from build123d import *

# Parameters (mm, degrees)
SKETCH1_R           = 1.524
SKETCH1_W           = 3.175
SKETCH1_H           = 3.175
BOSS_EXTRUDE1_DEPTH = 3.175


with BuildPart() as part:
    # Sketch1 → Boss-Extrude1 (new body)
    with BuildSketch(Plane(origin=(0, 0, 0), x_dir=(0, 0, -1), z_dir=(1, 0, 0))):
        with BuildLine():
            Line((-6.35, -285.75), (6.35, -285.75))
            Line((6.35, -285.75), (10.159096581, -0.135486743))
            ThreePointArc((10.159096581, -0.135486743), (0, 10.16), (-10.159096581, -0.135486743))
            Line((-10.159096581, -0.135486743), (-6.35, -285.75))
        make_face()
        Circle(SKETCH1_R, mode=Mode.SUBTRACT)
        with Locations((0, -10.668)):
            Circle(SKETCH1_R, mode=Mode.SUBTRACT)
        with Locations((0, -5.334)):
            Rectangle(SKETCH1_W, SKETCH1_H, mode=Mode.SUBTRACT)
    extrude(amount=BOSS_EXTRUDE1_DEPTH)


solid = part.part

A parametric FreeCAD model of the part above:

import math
import FreeCAD as App
import Part
import Sketcher
from FreeCAD import Vector
Q = App.Units.Quantity


def add_polygon(sketch, points):
    """Adds a closed chain of lines whose ends are joined by coincident constraints."""
    first, n = sketch.GeometryCount, len(points)
    for a, b in zip(points, points[1:] + points[:1]):
        sketch.addGeometry(Part.LineSegment(App.Vector(*a, 0), App.Vector(*b, 0)), False)
    for i in range(n):
        sketch.addConstraint(Sketcher.Constraint("Coincident", first + i, 2, first + (i + 1) % n, 1))

doc = App.newDocument("Part")
params = doc.addObject("Spreadsheet::Sheet", "Params")
for row, (alias, value) in enumerate([
    ("sketch1_radius", "0.4 in"),
    ("sketch1_diameter", "0.12 in"),
    ("sketch1_height", "0.5 in"),
    ("sketch1_width", "0.125 in"),
    ("pad1_length", "0.125 in"),
], start=1):
    params.set(f"A{row}", alias)
    params.set(f"B{row}", "=" + value)
    params.setAlias(f"B{row}", alias)

body = doc.addObject("PartDesign::Body", "Body")

# Sketch on YZ plane
sketch1 = body.newObject("Sketcher::SketchObject", "Sketch")
sketch1.AttachmentSupport = (doc.getObject("YZ_Plane"), [""])
sketch1.MapMode = "FlatFace"
sketch1.addGeometry(Part.LineSegment(Vector(-285.8, 6.3, 0), Vector(-285.8, -6.3, 0)), False)  # 0
sketch1.addGeometry(Part.LineSegment(Vector(-285.8, -6.3, 0), Vector(-0.1, -10.2, 0)), False)  # 1
sketch1.addGeometry(Part.ArcOfCircle(Part.Circle(Vector(0, 0, 0), Vector(0, 0, 1), 10.2), math.radians(-91), math.radians(91)), False)  # 2
sketch1.addGeometry(Part.LineSegment(Vector(-0.1, 10.2, 0), Vector(-285.8, 6.3, 0)), False)  # 3
sketch1.addGeometry(Part.Circle(Vector(-10.7, 0, 0), Vector(0, 0, 1), 1.5), False)  # 4
add_polygon(sketch1, [(-6.9, -1.6), (-6.9, 1.6), (-3.7, 1.6), (-3.7, -1.6)])  # lines 5-8
sketch1.addGeometry(Part.Circle(Vector(0, 0, 0), Vector(0, 0, 1), 1.5), False)  # 9
sketch1.addConstraint([
    Sketcher.Constraint("Coincident", 0, 2, 1, 1),
    Sketcher.Constraint("Tangent", 1, 2, 2, 1),
    Sketcher.Constraint("Tangent", 2, 2, 3, 1),
    Sketcher.Constraint("Coincident", 3, 2, 0, 1),
    Sketcher.Constraint("Vertical", 0),
    Sketcher.Constraint("Vertical", 5),
    Sketcher.Constraint("Horizontal", 6),
    Sketcher.Constraint("Vertical", 7),
    Sketcher.Constraint("Horizontal", 8),
    Sketcher.Constraint("Coincident", 2, 3, -1, 1),
    Sketcher.Constraint("Coincident", 9, 3, -1, 1),
    Sketcher.Constraint("Equal", 4, 9),
    Sketcher.Constraint("PointOnObject", 4, 3, -1),
    Sketcher.Constraint("Vertical", 1, 2, 2, 2),
    Sketcher.Constraint("Equal", 8, 5),
    Sketcher.Constraint("Radius", 2, Q("0.4 in")),
    Sketcher.Constraint("Diameter", 4, Q("0.12 in")),
    Sketcher.Constraint("DistanceY", 0, 2, 0, 1, Q("0.5 in")),
    Sketcher.Constraint("DistanceX", 6, 1, 6, 2, Q("0.125 in")),
    Sketcher.Constraint("DistanceX", 4, 3, -1, 1, Q("0.42 in")),
    Sketcher.Constraint("DistanceX", 0, 2, -1, 1, Q("11.25 in")),
    Sketcher.Constraint("DistanceY", -1, 1, 5, 2, Q("0.0625 in")),
    Sketcher.Constraint("DistanceX", 5, 2, -1, 1, Q("0.2725 in")),
])
sketch1.setExpression("Constraints[19]", "Params.sketch1_radius")
sketch1.setExpression("Constraints[20]", "Params.sketch1_diameter")
sketch1.setExpression("Constraints[21]", "Params.sketch1_height")
sketch1.setExpression("Constraints[22]", "Params.sketch1_width")
pad1 = body.newObject("PartDesign::Pad", "Pad")
pad1.Profile = sketch1
pad1.setExpression("Length", "Params.pad1_length")

doc.recompute()
